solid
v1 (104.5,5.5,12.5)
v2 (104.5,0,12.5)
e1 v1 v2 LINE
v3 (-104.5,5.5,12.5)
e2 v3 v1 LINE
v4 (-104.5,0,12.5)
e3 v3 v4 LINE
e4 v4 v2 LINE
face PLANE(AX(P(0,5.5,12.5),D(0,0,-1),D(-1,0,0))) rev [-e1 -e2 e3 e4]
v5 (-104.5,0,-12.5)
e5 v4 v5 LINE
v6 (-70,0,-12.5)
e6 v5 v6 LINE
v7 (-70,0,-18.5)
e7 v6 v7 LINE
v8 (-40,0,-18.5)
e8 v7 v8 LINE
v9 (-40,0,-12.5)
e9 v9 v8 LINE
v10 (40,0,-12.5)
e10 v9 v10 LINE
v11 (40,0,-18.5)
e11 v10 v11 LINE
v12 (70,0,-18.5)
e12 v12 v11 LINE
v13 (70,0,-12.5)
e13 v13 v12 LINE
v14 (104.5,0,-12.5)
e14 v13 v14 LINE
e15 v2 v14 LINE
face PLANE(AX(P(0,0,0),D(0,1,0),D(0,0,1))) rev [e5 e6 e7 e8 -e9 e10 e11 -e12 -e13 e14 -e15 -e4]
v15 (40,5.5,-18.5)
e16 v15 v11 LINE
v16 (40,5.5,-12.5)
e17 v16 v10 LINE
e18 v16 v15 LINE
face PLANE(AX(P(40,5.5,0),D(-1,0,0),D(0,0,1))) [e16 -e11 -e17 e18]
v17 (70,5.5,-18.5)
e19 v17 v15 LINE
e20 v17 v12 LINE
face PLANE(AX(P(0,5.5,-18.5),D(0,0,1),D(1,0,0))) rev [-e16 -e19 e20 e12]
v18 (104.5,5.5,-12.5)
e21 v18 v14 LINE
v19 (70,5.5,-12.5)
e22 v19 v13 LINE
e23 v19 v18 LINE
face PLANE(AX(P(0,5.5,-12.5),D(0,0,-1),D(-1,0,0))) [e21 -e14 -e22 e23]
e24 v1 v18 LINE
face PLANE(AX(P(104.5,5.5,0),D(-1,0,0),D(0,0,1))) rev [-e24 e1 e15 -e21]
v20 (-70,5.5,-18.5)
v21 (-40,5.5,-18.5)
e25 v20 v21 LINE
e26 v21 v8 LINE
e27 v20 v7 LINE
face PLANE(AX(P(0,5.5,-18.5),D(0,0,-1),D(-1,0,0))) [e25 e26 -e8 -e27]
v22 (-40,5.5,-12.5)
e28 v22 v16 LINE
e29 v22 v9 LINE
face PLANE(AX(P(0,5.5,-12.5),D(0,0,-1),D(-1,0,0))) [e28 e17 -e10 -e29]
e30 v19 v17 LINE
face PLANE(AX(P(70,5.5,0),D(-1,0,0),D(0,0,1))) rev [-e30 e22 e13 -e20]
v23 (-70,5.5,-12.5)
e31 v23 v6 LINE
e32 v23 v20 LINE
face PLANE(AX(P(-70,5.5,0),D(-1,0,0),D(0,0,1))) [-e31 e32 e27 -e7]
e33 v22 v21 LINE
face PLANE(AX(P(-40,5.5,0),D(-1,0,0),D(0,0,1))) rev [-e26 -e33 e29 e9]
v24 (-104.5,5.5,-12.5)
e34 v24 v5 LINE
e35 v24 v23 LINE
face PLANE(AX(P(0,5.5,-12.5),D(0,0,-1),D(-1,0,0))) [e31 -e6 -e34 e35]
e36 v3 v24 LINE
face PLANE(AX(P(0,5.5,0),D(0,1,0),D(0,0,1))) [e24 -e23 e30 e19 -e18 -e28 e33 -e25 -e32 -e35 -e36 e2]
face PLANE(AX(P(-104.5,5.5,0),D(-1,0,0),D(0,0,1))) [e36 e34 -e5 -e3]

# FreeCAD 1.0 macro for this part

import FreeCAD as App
import Part
import Sketcher
Q = App.Units.Quantity

doc = App.newDocument("Part")
body = doc.addObject("PartDesign::Body", "Body")

# Sketch on XZ plane
sketch1 = doc.addObject("Sketcher::SketchObject", "Sketch")
body.addObject(sketch1)
sketch1.AttachmentSupport = (doc.XZ_Plane, [""])
sketch1.MapMode = "FlatFace"
sketch1.addGeometry([
    Part.LineSegment(App.Vector(-70, -18.5, 0), App.Vector(-70, -12.5, 0)),  # 0
    Part.LineSegment(App.Vector(-70, -12.5, 0), App.Vector(-104.5, -12.5, 0)),  # 1
    Part.LineSegment(App.Vector(-104.5, -12.5, 0), App.Vector(-104.5, 12.5, 0)),  # 2
    Part.LineSegment(App.Vector(-104.5, 12.5, 0), App.Vector(104.5, 12.5, 0)),  # 3
    Part.LineSegment(App.Vector(104.5, 12.5, 0), App.Vector(104.5, -12.5, 0)),  # 4
    Part.LineSegment(App.Vector(104.5, -12.5, 0), App.Vector(70, -12.5, 0)),  # 5
    Part.LineSegment(App.Vector(70, -12.5, 0), App.Vector(70, -18.5, 0)),  # 6
    Part.LineSegment(App.Vector(70, -18.5, 0), App.Vector(40, -18.5, 0)),  # 7
    Part.LineSegment(App.Vector(40, -18.5, 0), App.Vector(40, -12.5, 0)),  # 8
    Part.LineSegment(App.Vector(40, -12.5, 0), App.Vector(-40, -12.5, 0)),  # 9
    Part.LineSegment(App.Vector(-40, -12.5, 0), App.Vector(-40, -18.5, 0)),  # 10
    Part.LineSegment(App.Vector(-40, -18.5, 0), App.Vector(-70, -18.5, 0)),  # 11
], False)
sketch1.addConstraint([
    Sketcher.Constraint("Coincident", 0, 2, 1, 1),
    Sketcher.Constraint("Coincident", 1, 2, 2, 1),
    Sketcher.Constraint("Coincident", 2, 2, 3, 1),
    Sketcher.Constraint("Coincident", 3, 2, 4, 1),
    Sketcher.Constraint("Coincident", 4, 2, 5, 1),
    Sketcher.Constraint("Coincident", 5, 2, 6, 1),
    Sketcher.Constraint("Coincident", 6, 2, 7, 1),
    Sketcher.Constraint("Coincident", 7, 2, 8, 1),
    Sketcher.Constraint("Coincident", 8, 2, 9, 1),
    Sketcher.Constraint("Coincident", 9, 2, 10, 1),
    Sketcher.Constraint("Coincident", 10, 2, 11, 1),
    Sketcher.Constraint("Coincident", 11, 2, 0, 1),
    Sketcher.Constraint("Vertical", 0),
    Sketcher.Constraint("Horizontal", 1),
    Sketcher.Constraint("Vertical", 2),
    Sketcher.Constraint("Horizontal", 3),
    Sketcher.Constraint("Vertical", 4),
    Sketcher.Constraint("Horizontal", 5),
    Sketcher.Constraint("Vertical", 6),
    Sketcher.Constraint("Horizontal", 7),
    Sketcher.Constraint("Vertical", 8),
    Sketcher.Constraint("Horizontal", 9),
    Sketcher.Constraint("Vertical", 10),
    Sketcher.Constraint("Horizontal", 11),
    Sketcher.Constraint("Symmetric", 1, 2, 3, 2, -1, 1),
    Sketcher.Constraint("Symmetric", 0, 2, 5, 2, -2),
    Sketcher.Constraint("Symmetric", 7, 2, 10, 2, -2),
    Sketcher.Constraint("Horizontal", 5, 2, 8, 2),
    Sketcher.Constraint("DistanceX", 3, 1, 3, 2, Q("209 mm")),
    Sketcher.Constraint("DistanceX", 7, 2, 7, 1, Q("30 mm")),
    Sketcher.Constraint("DistanceX", 9, 2, 9, 1, Q("80 mm")),
    Sketcher.Constraint("DistanceY", 0, 1, 0, 2, Q("6 mm")),
    Sketcher.Constraint("DistanceY", 2, 1, 2, 2, Q("25 mm")),
])
pad1 = doc.addObject("PartDesign::Pad", "Pad")
body.addObject(pad1)
pad1.Profile = sketch1
pad1.Length = 5.5
pad1.Reversed = True

doc.recompute()
